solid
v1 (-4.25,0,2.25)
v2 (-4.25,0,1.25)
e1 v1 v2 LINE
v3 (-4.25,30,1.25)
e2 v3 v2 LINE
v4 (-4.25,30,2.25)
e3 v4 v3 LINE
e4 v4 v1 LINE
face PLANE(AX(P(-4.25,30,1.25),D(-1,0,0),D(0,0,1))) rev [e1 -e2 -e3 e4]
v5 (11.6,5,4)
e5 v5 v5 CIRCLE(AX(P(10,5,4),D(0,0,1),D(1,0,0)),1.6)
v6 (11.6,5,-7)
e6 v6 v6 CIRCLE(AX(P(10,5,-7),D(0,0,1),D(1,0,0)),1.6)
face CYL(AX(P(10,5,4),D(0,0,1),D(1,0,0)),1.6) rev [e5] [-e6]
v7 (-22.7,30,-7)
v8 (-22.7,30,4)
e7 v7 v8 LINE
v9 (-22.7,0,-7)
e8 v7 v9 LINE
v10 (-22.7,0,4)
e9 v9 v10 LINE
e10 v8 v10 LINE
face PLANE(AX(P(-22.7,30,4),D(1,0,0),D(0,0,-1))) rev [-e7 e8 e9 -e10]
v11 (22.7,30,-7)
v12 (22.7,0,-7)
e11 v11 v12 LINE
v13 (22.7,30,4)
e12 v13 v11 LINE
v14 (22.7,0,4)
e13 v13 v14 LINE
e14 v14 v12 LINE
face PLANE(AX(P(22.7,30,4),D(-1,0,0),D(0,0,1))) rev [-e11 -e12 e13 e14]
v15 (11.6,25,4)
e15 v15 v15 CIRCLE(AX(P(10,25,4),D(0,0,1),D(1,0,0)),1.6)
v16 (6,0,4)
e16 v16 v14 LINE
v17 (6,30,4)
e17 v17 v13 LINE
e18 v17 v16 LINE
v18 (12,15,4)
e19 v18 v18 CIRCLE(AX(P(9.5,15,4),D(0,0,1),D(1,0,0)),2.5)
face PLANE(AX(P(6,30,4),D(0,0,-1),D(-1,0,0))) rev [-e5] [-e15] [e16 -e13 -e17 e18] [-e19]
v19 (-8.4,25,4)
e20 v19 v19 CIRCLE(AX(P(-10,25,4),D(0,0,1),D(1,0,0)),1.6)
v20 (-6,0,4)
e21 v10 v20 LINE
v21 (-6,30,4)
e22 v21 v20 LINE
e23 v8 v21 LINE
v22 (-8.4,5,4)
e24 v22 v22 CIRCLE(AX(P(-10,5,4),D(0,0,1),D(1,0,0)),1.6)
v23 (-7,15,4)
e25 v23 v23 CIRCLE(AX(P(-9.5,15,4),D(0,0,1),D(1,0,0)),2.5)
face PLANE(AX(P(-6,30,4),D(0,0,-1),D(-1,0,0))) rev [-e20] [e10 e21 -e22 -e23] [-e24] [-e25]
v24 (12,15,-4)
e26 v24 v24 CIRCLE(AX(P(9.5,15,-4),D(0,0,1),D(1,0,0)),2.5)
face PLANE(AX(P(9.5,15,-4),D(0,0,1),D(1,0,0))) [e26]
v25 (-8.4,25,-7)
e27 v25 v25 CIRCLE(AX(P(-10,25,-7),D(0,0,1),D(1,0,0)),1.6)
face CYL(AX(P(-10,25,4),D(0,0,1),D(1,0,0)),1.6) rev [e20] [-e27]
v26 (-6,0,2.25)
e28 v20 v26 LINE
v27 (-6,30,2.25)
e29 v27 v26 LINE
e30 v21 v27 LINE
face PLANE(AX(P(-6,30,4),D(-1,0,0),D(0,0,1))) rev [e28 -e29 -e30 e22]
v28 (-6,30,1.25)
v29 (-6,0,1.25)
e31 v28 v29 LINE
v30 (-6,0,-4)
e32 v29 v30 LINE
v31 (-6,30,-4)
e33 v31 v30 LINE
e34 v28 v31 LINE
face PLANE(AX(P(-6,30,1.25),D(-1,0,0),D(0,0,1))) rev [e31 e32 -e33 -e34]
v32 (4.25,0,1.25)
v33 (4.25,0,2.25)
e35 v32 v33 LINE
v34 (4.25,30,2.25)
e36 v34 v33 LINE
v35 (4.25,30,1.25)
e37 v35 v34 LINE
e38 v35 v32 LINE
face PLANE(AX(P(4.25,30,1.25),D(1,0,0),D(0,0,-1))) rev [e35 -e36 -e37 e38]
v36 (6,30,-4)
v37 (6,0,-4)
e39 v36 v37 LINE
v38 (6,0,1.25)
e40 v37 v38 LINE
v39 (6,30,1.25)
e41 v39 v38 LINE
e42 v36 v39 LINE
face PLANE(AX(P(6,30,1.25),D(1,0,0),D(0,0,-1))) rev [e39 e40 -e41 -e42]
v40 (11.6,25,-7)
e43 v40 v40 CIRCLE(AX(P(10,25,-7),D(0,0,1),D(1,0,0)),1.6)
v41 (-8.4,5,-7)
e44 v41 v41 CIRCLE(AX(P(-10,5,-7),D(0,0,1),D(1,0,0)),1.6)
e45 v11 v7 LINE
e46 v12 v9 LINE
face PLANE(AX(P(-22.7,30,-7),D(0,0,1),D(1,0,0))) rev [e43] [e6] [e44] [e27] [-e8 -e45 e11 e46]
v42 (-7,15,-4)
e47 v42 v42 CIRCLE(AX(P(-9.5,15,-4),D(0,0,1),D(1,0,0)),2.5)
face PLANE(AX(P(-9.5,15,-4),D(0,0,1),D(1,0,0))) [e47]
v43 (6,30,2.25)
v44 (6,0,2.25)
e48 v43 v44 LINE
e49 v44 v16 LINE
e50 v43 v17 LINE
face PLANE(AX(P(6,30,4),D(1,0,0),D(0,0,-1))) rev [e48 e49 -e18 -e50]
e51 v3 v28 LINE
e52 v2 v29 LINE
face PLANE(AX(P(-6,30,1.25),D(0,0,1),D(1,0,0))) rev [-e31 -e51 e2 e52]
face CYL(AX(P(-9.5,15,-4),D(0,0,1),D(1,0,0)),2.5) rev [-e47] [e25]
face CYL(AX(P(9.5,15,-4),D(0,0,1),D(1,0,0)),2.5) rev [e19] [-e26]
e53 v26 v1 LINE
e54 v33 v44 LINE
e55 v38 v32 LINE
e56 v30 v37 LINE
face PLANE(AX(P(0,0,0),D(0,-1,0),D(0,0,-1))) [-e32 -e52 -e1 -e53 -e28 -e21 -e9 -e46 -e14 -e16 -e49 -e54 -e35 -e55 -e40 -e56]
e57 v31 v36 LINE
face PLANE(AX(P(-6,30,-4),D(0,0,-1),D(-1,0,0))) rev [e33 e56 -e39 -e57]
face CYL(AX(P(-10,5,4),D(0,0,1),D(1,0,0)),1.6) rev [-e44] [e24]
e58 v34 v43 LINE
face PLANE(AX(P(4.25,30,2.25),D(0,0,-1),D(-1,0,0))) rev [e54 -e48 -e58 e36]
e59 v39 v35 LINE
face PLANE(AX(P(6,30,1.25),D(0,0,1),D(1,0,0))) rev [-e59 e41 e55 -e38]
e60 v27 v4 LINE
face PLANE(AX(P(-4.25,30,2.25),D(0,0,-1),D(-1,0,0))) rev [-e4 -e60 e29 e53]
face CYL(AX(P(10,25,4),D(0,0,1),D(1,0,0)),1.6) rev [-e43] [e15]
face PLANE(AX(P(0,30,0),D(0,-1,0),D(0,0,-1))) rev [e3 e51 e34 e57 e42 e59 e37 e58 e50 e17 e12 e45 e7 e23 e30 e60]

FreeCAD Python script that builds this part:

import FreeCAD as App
import Part
import Sketcher


def add_polygon(sketch, points):
    """Adds a closed chain of lines whose ends are joined by coincident constraints."""
    first, n = sketch.GeometryCount, len(points)
    for a, b in zip(points, points[1:] + points[:1]):
        sketch.addGeometry(Part.LineSegment(App.Vector(*a, 0), App.Vector(*b, 0)), False)
    for i in range(n):
        sketch.addConstraint(Sketcher.Constraint("Coincident", first + i, 2, first + (i + 1) % n, 1))

doc = App.newDocument("Part")
body = doc.addObject("PartDesign::Body", "Body")

# Sketch on XZ plane
sketch1 = doc.addObject("Sketcher::SketchObject", "Sketch")
body.addObject(sketch1)
sketch1.AttachmentSupport = (doc.XZ_Plane, [""])
sketch1.MapMode = "FlatFace"
add_polygon(sketch1, [(-4.2, 1.2), (-6, 1.2), (-6, -4), (6, -4), (6, 1.2), (4.2, 1.2), (4.2, 2.2), (6, 2.2), (6, 4), (22.7, 4), (22.7, -7), (-22.7, -7), (-22.7, 4), (-6, 4), (-6, 2.2), (-4.2, 2.2)])  # lines 0-15
sketch1.addConstraint(Sketcher.Constraint("Horizontal", 0))
sketch1.addConstraint(Sketcher.Constraint("Vertical", 1))
sketch1.addConstraint(Sketcher.Constraint("Horizontal", 2))
sketch1.addConstraint(Sketcher.Constraint("Vertical", 3))
sketch1.addConstraint(Sketcher.Constraint("Horizontal", 4))
sketch1.addConstraint(Sketcher.Constraint("Vertical", 5))
sketch1.addConstraint(Sketcher.Constraint("Horizontal", 6))
sketch1.addConstraint(Sketcher.Constraint("Vertical", 7))
sketch1.addConstraint(Sketcher.Constraint("Horizontal", 8))
sketch1.addConstraint(Sketcher.Constraint("Vertical", 9))
sketch1.addConstraint(Sketcher.Constraint("Horizontal", 10))
sketch1.addConstraint(Sketcher.Constraint("Vertical", 11))
sketch1.addConstraint(Sketcher.Constraint("Horizontal", 12))
sketch1.addConstraint(Sketcher.Constraint("Vertical", 13))
sketch1.addConstraint(Sketcher.Constraint("Horizontal", 14))
sketch1.addConstraint(Sketcher.Constraint("Vertical", 15))
sketch1.addConstraint(Sketcher.Constraint("Symmetric", 1, 2, 7, 2, -1, 1))
sketch1.addConstraint(Sketcher.Constraint("Symmetric", 2, 2, 12, 2, -1, 1))
sketch1.addConstraint(Sketcher.Constraint("Symmetric", 0, 2, 3, 2, -2))
sketch1.addConstraint(Sketcher.Constraint("Symmetric", 5, 2, 14, 2, -2))
sketch1.addConstraint(Sketcher.Constraint("Equal", 8, 12))
sketch1.addConstraint(Sketcher.Constraint("Equal", 14, 7))
sketch1.addConstraint(Sketcher.Constraint("DistanceX", 2, 1, 2, 2, 12.0))
sketch1.addConstraint(Sketcher.Constraint("DistanceY", 5, 1, 5, 2, 1.0))
sketch1.addConstraint(Sketcher.Constraint("DistanceY", 9, 2, 9, 1, 11.0))
sketch1.addConstraint(Sketcher.Constraint("DistanceX", 8, 1, 8, 2, 16.7))
sketch1.addConstraint(Sketcher.Constraint("DistanceY", 1, 2, -1, 1, 4.0))
sketch1.addConstraint(Sketcher.Constraint("DistanceX", 0, 2, 0, 1, 1.75))
pad1 = doc.addObject("PartDesign::Pad", "Pad")
body.addObject(pad1)
pad1.Profile = sketch1
pad1.Length = 30
pad1.Reversed = True

# Sketch on XY plane
sketch2 = doc.addObject("Sketcher::SketchObject", "Sketch001")
body.addObject(sketch2)
sketch2.AttachmentSupport = (doc.XY_Plane, [""])
sketch2.MapMode = "FlatFace"
sketch2.AttachmentOffset = App.Placement(App.Vector(0, 0, 4), App.Rotation())
sketch2.addGeometry(Part.Circle(App.Vector(-10, 25, 0), App.Vector(0, 0, 1), 1.6), False)
sketch2.addGeometry(Part.Circle(App.Vector(10, 25, 0), App.Vector(0, 0, 1), 1.6), False)
sketch2.addGeometry(Part.Circle(App.Vector(10, 5, 0), App.Vector(0, 0, 1), 1.6), False)
sketch2.addGeometry(Part.Circle(App.Vector(-10, 5, 0), App.Vector(0, 0, 1), 1.6), False)
sketch2.addConstraint(Sketcher.Constraint("Equal", 0, 1))
sketch2.addConstraint(Sketcher.Constraint("Equal", 1, 2))
sketch2.addConstraint(Sketcher.Constraint("Equal", 2, 3))
sketch2.addConstraint(Sketcher.Constraint("Symmetric", 0, 3, 1, 3, -2))
sketch2.addConstraint(Sketcher.Constraint("Symmetric", 2, 3, 3, 3, -2))
sketch2.addConstraint(Sketcher.Constraint("Vertical", 1, 3, 2, 3))
sketch2.addConstraint(Sketcher.Constraint("Diameter", 0, 3.2))
sketch2.addConstraint(Sketcher.Constraint("DistanceX", 0, 3, -1, 1, 10.0))
sketch2.addConstraint(Sketcher.Constraint("DistanceY", -1, 1, 0, 3, 25.0))
sketch2.addConstraint(Sketcher.Constraint("DistanceY", -1, 1, 2, 3, 5.0))
doc.recompute()
hole = doc.addObject("PartDesign::Hole", "Hole")
body.addObject(hole)
hole.Profile = sketch2
hole.ThreadType = "None"
hole.Diameter = 3.2
hole.DepthType = "ThroughAll"

# Sketch on XY plane
sketch3 = doc.addObject("Sketcher::SketchObject", "Sketch002")
body.addObject(sketch3)
sketch3.AttachmentSupport = (doc.XY_Plane, [""])
sketch3.MapMode = "FlatFace"
sketch3.AttachmentOffset = App.Placement(App.Vector(0, 0, 4), App.Rotation())
sketch3.addGeometry(Part.Circle(App.Vector(9.5, 15, 0), App.Vector(0, 0, 1), 2.5), False)
sketch3.addGeometry(Part.Circle(App.Vector(-9.5, 15, 0), App.Vector(0, 0, 1), 2.5), False)
sketch3.addConstraint(Sketcher.Constraint("Equal", 0, 1))
sketch3.addConstraint(Sketcher.Constraint("Symmetric", 0, 3, 1, 3, -2))
sketch3.addConstraint(Sketcher.Constraint("Diameter", 0, 5.0))
sketch3.addConstraint(Sketcher.Constraint("DistanceY", -1, 1, 0, 3, 15.0))
sketch3.addConstraint(Sketcher.Constraint("DistanceX", 1, 3, 0, 3, 19.0))
pocket1 = doc.addObject("PartDesign::Pocket", "Pocket")
body.addObject(pocket1)
pocket1.Profile = sketch3
pocket1.Length = 8

doc.recompute()
